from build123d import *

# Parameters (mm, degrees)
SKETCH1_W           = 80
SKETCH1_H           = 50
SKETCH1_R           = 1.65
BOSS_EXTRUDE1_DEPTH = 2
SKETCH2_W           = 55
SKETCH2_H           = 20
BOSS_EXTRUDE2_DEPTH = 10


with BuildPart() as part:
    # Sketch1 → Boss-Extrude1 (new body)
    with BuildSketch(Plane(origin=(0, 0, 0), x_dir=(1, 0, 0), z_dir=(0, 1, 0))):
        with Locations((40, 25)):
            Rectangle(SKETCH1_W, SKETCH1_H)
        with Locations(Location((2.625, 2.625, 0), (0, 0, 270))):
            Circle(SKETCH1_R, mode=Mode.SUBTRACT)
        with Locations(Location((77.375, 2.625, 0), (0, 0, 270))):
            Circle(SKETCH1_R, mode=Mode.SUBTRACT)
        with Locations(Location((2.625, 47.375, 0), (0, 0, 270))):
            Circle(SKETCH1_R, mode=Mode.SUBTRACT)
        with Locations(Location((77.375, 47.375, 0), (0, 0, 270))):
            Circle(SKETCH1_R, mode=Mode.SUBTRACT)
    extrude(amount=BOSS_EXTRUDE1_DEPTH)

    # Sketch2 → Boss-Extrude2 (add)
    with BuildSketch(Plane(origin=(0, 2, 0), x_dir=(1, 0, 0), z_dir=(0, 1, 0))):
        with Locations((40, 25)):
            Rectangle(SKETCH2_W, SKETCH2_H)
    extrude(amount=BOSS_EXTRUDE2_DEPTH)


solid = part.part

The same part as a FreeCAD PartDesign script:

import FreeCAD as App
import Part
import Sketcher

V = App.Vector


def add_polygon(sketch, points):
    """Adds a closed chain of lines whose ends are joined by coincident constraints."""
    first, n = sketch.GeometryCount, len(points)
    for a, b in zip(points, points[1:] + points[:1]):
        sketch.addGeometry(Part.LineSegment(App.Vector(*a, 0), App.Vector(*b, 0)), False)
    for i in range(n):
        sketch.addConstraint(Sketcher.Constraint("Coincident", first + i, 2, first + (i + 1) % n, 1))

doc = App.newDocument("Part")
body = doc.addObject("PartDesign::Body", "Body")

# Sketch on XZ plane
sketch1 = doc.addObject("Sketcher::SketchObject", "Sketch")
body.addObject(sketch1)
sketch1.AttachmentSupport = (doc.XZ_Plane, [""])
sketch1.MapMode = "FlatFace"
add_polygon(sketch1, [(0, -50), (0, 0), (80, 0), (80, -50)])  # lines 0-3
sketch1.addGeometry(Part.Circle(V(2.6, -2.6, 0), V(0, 0, 1), 1.6), False)  # 4
sketch1.addGeometry(Part.Circle(V(77.4, -2.6, 0), V(0, 0, 1), 1.6), False)  # 5
sketch1.addGeometry(Part.Circle(V(2.6, -47.4, 0), V(0, 0, 1), 1.6), False)  # 6
sketch1.addGeometry(Part.Circle(V(77.4, -47.4, 0), V(0, 0, 1), 1.6), False)  # 7
sketch1.addConstraint([
    Sketcher.Constraint("Vertical", 0),
    Sketcher.Constraint("Horizontal", 1),
    Sketcher.Constraint("Vertical", 2),
    Sketcher.Constraint("Horizontal", 3),
    Sketcher.Constraint("Coincident", 0, 2, -1, 1),
    Sketcher.Constraint("Equal", 4, 5),
    Sketcher.Constraint("Equal", 5, 6),
    Sketcher.Constraint("Equal", 6, 7),
    Sketcher.Constraint("Horizontal", 4, 3, 5, 3),
    Sketcher.Constraint("Horizontal", 6, 3, 7, 3),
    Sketcher.Constraint("Vertical", 4, 3, 6, 3),
    Sketcher.Constraint("Vertical", 5, 3, 7, 3),
    Sketcher.Constraint("Diameter", 4, 3.3),
    Sketcher.Constraint("DistanceX", 1, 1, 1, 2, 80.0),
    Sketcher.Constraint("DistanceY", 0, 1, 0, 2, 50.0),
    Sketcher.Constraint("DistanceX", 4, 3, 5, 3, 74.75),
    Sketcher.Constraint("DistanceY", 6, 3, 4, 3, 44.75),
    Sketcher.Constraint("DistanceX", -1, 1, 4, 3, 2.625),
    Sketcher.Constraint("DistanceY", 4, 3, -1, 1, 2.625),
])
pad1 = doc.addObject("PartDesign::Pad", "Pad")
body.addObject(pad1)
pad1.Profile = sketch1
pad1.Length = 2
pad1.Reversed = True

# Sketch on XZ plane
sketch2 = doc.addObject("Sketcher::SketchObject", "Sketch001")
body.addObject(sketch2)
sketch2.AttachmentSupport = (doc.XZ_Plane, [""])
sketch2.MapMode = "FlatFace"
sketch2.AttachmentOffset = App.Placement(V(0, 0, -2), App.Rotation())
add_polygon(sketch2, [(12, -35), (12, -15), (68, -15), (68, -35)])  # lines 0-3
sketch2.addConstraint([
    Sketcher.Constraint("Vertical", 0),
    Sketcher.Constraint("Horizontal", 1),
    Sketcher.Constraint("Vertical", 2),
    Sketcher.Constraint("Horizontal", 3),
    Sketcher.Constraint("DistanceX", 1, 1, 1, 2, 55.0),
    Sketcher.Constraint("DistanceY", 0, 1, 0, 2, 20.0),
    Sketcher.Constraint("DistanceY", 0, 2, -1, 1, 15.0),
    Sketcher.Constraint("DistanceX", -1, 1, 0, 2, 12.5),
])
pad2 = doc.addObject("PartDesign::Pad", "Pad001")
body.addObject(pad2)
pad2.Profile = sketch2
pad2.Length = 10
pad2.Reversed = True

doc.recompute()
